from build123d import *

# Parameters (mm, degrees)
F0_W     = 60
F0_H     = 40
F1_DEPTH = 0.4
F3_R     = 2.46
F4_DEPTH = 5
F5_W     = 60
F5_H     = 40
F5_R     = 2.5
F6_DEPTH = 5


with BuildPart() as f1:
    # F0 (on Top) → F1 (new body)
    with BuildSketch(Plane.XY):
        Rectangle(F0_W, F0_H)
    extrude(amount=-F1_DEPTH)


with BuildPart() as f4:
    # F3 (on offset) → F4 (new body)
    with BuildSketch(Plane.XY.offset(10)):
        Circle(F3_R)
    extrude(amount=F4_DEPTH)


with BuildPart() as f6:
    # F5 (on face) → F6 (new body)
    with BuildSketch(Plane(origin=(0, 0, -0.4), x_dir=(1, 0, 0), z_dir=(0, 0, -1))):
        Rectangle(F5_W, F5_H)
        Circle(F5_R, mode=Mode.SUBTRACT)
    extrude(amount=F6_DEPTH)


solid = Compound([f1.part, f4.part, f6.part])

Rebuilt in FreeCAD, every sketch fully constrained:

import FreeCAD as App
import Part
import Sketcher


def add_polygon(sketch, points):
    """Adds a closed chain of lines whose ends are joined by coincident constraints."""
    first, n = sketch.GeometryCount, len(points)
    for a, b in zip(points, points[1:] + points[:1]):
        sketch.addGeometry(Part.LineSegment(App.Vector(*a, 0), App.Vector(*b, 0)), False)
    for i in range(n):
        sketch.addConstraint(Sketcher.Constraint("Coincident", first + i, 2, first + (i + 1) % n, 1))

doc = App.newDocument("Part")
params = doc.addObject("Spreadsheet::Sheet", "Params")
for row, (alias, value) in enumerate([
    ("sketch1_width", "60 mm"),
    ("sketch1_height", "40 mm"),
    ("pad1_length", "0.4 mm"),
    ("sketch2_diameter", "4.92 mm"),
    ("pad2_length", "5 mm"),
    ("sketch3_diameter", "5 mm"),
    ("sketch3_width", "60 mm"),
    ("sketch3_height", "40 mm"),
    ("pad3_length", "5 mm"),
], start=1):
    params.set(f"A{row}", alias)
    params.set(f"B{row}", "=" + value)
    params.setAlias(f"B{row}", alias)

body = doc.addObject("PartDesign::Body", "Body")

sketch1 = body.newObject("Sketcher::SketchObject", "Sketch")
sketch1.AttachmentSupport = (doc.getObject("XY_Plane"), [""])
sketch1.MapMode = "FlatFace"
add_polygon(sketch1, [(-30, 20), (-30, -20), (30, -20), (30, 20)])
sketch1.addConstraint([
    Sketcher.Constraint("Vertical", 0),
    Sketcher.Constraint("Horizontal", 1),
    Sketcher.Constraint("Vertical", 2),
    Sketcher.Constraint("Horizontal", 3),
    Sketcher.Constraint("Symmetric", 0, 2, 2, 2, -1, 1),
    Sketcher.Constraint("DistanceX", 1, 1, 1, 2, 60.0),
    Sketcher.Constraint("DistanceY", 0, 2, 0, 1, 40.0),
])
sketch1.setExpression("Constraints[9]", "Params.sketch1_width")
sketch1.setExpression("Constraints[10]", "Params.sketch1_height")
pad1 = body.newObject("PartDesign::Pad", "Pad")
pad1.Profile = sketch1
pad1.setExpression("Length", "Params.pad1_length")
pad1.Reversed = True
body2 = doc.addObject("PartDesign::Body", "Body001")

sketch2 = body2.newObject("Sketcher::SketchObject", "Sketch001")
sketch2.AttachmentSupport = (doc.getObject("XY_Plane001"), [""])
sketch2.MapMode = "FlatFace"
sketch2.AttachmentOffset = App.Placement(App.Vector(0, 0, 10), App.Rotation())
sketch2.addGeometry(Part.Circle(App.Vector(0, 0, 0), App.Vector(0, 0, 1), 2.46), False)
sketch2.addConstraint([
    Sketcher.Constraint("Coincident", 0, 3, -1, 1),
    Sketcher.Constraint("Diameter", 0, 4.92),
])
sketch2.setExpression("Constraints[1]", "Params.sketch2_diameter")
pad2 = body2.newObject("PartDesign::Pad", "Pad001")
pad2.Profile = sketch2
pad2.setExpression("Length", "Params.pad2_length")
body3 = doc.addObject("PartDesign::Body", "Body002")

sketch3 = body3.newObject("Sketcher::SketchObject", "Sketch002")
sketch3.AttachmentSupport = (doc.getObject("XY_Plane002"), [""])
sketch3.MapMode = "FlatFace"
sketch3.AttachmentOffset = App.Placement(App.Vector(0, 0, -0.4), App.Rotation())
add_polygon(sketch3, [(-30, -20), (-30, 20), (30, 20), (30, -20)])
sketch3.addGeometry(Part.Circle(App.Vector(0, 0, 0), App.Vector(0, 0, 1), 2.5), False)
sketch3.addConstraint([
    Sketcher.Constraint("Vertical", 0),
    Sketcher.Constraint("Horizontal", 1),
    Sketcher.Constraint("Vertical", 2),
    Sketcher.Constraint("Horizontal", 3),
    Sketcher.Constraint("Coincident", 4, 3, -1, 1),
    Sketcher.Constraint("Symmetric", 0, 2, 2, 2, -1, 1),
    Sketcher.Constraint("Diameter", 4, 5.0),
    Sketcher.Constraint("DistanceX", 1, 1, 1, 2, 60.0),
    Sketcher.Constraint("DistanceY", 0, 1, 0, 2, 40.0),
])
sketch3.setExpression("Constraints[10]", "Params.sketch3_diameter")
sketch3.setExpression("Constraints[11]", "Params.sketch3_width")
sketch3.setExpression("Constraints[12]", "Params.sketch3_height")
pad3 = body3.newObject("PartDesign::Pad", "Pad002")
pad3.Profile = sketch3
pad3.setExpression("Length", "Params.pad3_length")
pad3.Reversed = True

doc.recompute()
